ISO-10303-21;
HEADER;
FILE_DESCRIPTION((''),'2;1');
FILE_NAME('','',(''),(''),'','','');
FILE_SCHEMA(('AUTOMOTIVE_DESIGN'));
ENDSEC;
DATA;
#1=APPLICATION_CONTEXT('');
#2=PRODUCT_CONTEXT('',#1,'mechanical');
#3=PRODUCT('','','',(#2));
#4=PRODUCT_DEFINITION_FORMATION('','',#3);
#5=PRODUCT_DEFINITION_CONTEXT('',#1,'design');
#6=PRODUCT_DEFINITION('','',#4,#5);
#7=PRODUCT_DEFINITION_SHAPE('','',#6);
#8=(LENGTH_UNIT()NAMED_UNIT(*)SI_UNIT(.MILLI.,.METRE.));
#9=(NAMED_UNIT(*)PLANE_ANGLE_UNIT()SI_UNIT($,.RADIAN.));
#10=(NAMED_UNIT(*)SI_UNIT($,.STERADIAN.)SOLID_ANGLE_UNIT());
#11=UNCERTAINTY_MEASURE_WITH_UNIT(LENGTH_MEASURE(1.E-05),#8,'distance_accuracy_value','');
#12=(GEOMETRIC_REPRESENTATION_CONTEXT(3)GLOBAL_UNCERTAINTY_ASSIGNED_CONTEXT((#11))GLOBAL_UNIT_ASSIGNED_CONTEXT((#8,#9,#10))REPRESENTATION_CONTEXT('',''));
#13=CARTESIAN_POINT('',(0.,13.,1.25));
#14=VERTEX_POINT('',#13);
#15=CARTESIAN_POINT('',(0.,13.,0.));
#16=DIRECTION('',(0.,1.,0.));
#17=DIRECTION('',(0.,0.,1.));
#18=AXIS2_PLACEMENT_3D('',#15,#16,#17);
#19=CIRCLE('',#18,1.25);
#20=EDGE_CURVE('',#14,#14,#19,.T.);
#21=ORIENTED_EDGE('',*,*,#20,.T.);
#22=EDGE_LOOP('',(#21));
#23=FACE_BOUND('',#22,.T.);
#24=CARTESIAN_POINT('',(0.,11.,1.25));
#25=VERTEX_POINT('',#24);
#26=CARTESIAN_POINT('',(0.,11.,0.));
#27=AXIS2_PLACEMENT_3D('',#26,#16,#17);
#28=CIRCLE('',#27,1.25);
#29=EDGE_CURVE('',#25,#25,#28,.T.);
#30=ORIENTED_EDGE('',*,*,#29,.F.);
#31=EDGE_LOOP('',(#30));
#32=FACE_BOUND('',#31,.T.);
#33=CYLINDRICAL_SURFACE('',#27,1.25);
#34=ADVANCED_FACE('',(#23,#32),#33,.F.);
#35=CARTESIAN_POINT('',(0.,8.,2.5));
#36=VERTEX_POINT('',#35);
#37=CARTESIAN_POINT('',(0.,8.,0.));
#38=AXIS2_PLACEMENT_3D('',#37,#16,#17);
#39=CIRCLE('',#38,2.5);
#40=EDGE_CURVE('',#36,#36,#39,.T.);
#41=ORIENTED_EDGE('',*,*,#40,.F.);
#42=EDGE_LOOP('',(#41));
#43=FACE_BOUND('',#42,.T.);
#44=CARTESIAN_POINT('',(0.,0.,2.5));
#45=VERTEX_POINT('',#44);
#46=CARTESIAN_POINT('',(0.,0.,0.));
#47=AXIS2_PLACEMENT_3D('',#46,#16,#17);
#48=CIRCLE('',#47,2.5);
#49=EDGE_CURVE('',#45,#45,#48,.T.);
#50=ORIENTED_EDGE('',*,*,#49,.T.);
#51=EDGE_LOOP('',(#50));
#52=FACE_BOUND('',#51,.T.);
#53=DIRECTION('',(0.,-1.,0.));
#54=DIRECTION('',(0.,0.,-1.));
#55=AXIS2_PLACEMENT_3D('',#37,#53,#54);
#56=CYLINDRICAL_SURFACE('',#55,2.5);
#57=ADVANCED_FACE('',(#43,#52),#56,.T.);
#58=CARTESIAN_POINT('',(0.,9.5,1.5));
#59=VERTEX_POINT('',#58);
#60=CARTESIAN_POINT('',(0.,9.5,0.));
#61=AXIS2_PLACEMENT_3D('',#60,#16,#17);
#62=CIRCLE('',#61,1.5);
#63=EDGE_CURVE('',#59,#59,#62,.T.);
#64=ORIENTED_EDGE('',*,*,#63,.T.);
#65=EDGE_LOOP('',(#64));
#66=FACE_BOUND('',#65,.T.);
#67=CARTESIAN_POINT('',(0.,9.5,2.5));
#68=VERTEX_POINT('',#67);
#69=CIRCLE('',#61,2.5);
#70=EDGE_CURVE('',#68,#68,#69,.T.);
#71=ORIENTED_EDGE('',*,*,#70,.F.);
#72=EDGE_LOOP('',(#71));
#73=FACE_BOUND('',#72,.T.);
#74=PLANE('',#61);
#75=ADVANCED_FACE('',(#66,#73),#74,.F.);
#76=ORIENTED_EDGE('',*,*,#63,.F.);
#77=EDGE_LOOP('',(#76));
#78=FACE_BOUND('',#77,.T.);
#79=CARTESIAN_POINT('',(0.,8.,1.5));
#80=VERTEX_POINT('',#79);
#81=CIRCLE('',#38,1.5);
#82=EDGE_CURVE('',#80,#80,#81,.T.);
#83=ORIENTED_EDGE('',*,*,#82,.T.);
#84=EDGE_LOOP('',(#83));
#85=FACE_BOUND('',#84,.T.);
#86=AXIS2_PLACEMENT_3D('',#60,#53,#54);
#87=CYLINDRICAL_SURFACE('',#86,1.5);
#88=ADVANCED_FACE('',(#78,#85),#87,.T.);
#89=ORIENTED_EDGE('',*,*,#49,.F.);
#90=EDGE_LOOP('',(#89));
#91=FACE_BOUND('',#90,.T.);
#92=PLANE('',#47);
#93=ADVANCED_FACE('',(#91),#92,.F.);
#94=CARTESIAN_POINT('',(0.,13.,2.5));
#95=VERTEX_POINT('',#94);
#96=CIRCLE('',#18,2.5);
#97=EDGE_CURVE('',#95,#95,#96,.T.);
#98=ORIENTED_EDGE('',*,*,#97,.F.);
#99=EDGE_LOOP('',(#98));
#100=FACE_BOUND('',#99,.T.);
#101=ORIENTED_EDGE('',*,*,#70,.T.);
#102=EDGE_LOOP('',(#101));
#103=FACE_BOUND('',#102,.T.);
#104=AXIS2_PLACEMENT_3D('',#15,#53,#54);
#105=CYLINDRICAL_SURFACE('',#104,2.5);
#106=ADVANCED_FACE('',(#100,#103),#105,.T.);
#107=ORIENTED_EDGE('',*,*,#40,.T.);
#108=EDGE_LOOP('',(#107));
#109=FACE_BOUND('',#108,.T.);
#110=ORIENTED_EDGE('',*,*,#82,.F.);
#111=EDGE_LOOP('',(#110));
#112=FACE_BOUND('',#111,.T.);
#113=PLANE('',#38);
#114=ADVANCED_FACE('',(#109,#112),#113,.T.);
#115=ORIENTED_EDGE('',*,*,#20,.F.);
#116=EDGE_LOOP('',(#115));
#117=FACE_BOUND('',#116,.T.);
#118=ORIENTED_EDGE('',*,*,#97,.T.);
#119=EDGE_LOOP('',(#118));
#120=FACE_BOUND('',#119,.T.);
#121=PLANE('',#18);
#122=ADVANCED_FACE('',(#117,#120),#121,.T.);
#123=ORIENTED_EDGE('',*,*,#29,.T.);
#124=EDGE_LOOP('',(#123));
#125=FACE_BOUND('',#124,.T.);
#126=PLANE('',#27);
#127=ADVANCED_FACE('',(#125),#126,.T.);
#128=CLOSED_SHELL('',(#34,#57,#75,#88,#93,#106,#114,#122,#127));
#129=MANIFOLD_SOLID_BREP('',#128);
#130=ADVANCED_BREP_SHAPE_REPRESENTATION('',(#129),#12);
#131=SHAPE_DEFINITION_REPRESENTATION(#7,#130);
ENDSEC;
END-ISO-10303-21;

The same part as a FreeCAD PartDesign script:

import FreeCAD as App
import Part
import Sketcher
Q = App.Units.Quantity

doc = App.newDocument("Part")
body = doc.addObject("PartDesign::Body", "Body")

sketch1 = body.newObject("Sketcher::SketchObject", "Sketch")
sketch1.AttachmentSupport = (doc.getObject("XZ_Plane"), [""])
sketch1.MapMode = "FlatFace"
sketch1.addGeometry(Part.Circle(App.Vector(0, 0, 0), App.Vector(0, 0, 1), 2.5), False)
sketch1.addConstraint([
    Sketcher.Constraint("Coincident", 0, 3, -1, 1),
    Sketcher.Constraint("Diameter", 0, Q("5 mm")),
])
pad1 = body.newObject("PartDesign::Pad", "Pad")
pad1.Profile = sketch1
pad1.Length = 8
pad1.Reversed = True

sketch2 = body.newObject("Sketcher::SketchObject", "Sketch001")
sketch2.AttachmentSupport = (doc.getObject("XZ_Plane"), [""])
sketch2.MapMode = "FlatFace"
sketch2.AttachmentOffset = App.Placement(App.Vector(0, 0, -8), App.Rotation())
sketch2.addGeometry(Part.Circle(App.Vector(0, 0, 0), App.Vector(0, 0, 1), 1.5), False)
sketch2.addConstraint([
    Sketcher.Constraint("Coincident", 0, 3, -1, 1),
    Sketcher.Constraint("Diameter", 0, Q("3 mm")),
])
pad2 = body.newObject("PartDesign::Pad", "Pad001")
pad2.Profile = sketch2
pad2.Length = 1.5
pad2.Reversed = True

sketch3 = body.newObject("Sketcher::SketchObject", "Sketch002")
sketch3.AttachmentSupport = (doc.getObject("XZ_Plane"), [""])
sketch3.MapMode = "FlatFace"
sketch3.AttachmentOffset = App.Placement(App.Vector(0, 0, -9.5), App.Rotation())
sketch3.addGeometry(Part.Circle(App.Vector(0, 0, 0), App.Vector(0, 0, 1), 2.5), False)
sketch3.addConstraint([
    Sketcher.Constraint("Coincident", 0, 3, -1, 1),
    Sketcher.Constraint("Diameter", 0, Q("5 mm")),
])
pad3 = body.newObject("PartDesign::Pad", "Pad002")
pad3.Profile = sketch3
pad3.Length = 3.5
pad3.Reversed = True

sketch4 = body.newObject("Sketcher::SketchObject", "Sketch003")
sketch4.AttachmentSupport = (doc.getObject("XZ_Plane"), [""])
sketch4.MapMode = "FlatFace"
sketch4.AttachmentOffset = App.Placement(App.Vector(0, 0, -13), App.Rotation())
sketch4.addGeometry(Part.Circle(App.Vector(0, 0, 0), App.Vector(0, 0, 1), 1.25), False)
sketch4.addConstraint([
    Sketcher.Constraint("Coincident", 0, 3, -1, 1),
    Sketcher.Constraint("Diameter", 0, Q("2.5 mm")),
])
pocket1 = body.newObject("PartDesign::Pocket", "Pocket")
pocket1.Profile = sketch4
pocket1.Length = 2
pocket1.Reversed = True

doc.recompute()
